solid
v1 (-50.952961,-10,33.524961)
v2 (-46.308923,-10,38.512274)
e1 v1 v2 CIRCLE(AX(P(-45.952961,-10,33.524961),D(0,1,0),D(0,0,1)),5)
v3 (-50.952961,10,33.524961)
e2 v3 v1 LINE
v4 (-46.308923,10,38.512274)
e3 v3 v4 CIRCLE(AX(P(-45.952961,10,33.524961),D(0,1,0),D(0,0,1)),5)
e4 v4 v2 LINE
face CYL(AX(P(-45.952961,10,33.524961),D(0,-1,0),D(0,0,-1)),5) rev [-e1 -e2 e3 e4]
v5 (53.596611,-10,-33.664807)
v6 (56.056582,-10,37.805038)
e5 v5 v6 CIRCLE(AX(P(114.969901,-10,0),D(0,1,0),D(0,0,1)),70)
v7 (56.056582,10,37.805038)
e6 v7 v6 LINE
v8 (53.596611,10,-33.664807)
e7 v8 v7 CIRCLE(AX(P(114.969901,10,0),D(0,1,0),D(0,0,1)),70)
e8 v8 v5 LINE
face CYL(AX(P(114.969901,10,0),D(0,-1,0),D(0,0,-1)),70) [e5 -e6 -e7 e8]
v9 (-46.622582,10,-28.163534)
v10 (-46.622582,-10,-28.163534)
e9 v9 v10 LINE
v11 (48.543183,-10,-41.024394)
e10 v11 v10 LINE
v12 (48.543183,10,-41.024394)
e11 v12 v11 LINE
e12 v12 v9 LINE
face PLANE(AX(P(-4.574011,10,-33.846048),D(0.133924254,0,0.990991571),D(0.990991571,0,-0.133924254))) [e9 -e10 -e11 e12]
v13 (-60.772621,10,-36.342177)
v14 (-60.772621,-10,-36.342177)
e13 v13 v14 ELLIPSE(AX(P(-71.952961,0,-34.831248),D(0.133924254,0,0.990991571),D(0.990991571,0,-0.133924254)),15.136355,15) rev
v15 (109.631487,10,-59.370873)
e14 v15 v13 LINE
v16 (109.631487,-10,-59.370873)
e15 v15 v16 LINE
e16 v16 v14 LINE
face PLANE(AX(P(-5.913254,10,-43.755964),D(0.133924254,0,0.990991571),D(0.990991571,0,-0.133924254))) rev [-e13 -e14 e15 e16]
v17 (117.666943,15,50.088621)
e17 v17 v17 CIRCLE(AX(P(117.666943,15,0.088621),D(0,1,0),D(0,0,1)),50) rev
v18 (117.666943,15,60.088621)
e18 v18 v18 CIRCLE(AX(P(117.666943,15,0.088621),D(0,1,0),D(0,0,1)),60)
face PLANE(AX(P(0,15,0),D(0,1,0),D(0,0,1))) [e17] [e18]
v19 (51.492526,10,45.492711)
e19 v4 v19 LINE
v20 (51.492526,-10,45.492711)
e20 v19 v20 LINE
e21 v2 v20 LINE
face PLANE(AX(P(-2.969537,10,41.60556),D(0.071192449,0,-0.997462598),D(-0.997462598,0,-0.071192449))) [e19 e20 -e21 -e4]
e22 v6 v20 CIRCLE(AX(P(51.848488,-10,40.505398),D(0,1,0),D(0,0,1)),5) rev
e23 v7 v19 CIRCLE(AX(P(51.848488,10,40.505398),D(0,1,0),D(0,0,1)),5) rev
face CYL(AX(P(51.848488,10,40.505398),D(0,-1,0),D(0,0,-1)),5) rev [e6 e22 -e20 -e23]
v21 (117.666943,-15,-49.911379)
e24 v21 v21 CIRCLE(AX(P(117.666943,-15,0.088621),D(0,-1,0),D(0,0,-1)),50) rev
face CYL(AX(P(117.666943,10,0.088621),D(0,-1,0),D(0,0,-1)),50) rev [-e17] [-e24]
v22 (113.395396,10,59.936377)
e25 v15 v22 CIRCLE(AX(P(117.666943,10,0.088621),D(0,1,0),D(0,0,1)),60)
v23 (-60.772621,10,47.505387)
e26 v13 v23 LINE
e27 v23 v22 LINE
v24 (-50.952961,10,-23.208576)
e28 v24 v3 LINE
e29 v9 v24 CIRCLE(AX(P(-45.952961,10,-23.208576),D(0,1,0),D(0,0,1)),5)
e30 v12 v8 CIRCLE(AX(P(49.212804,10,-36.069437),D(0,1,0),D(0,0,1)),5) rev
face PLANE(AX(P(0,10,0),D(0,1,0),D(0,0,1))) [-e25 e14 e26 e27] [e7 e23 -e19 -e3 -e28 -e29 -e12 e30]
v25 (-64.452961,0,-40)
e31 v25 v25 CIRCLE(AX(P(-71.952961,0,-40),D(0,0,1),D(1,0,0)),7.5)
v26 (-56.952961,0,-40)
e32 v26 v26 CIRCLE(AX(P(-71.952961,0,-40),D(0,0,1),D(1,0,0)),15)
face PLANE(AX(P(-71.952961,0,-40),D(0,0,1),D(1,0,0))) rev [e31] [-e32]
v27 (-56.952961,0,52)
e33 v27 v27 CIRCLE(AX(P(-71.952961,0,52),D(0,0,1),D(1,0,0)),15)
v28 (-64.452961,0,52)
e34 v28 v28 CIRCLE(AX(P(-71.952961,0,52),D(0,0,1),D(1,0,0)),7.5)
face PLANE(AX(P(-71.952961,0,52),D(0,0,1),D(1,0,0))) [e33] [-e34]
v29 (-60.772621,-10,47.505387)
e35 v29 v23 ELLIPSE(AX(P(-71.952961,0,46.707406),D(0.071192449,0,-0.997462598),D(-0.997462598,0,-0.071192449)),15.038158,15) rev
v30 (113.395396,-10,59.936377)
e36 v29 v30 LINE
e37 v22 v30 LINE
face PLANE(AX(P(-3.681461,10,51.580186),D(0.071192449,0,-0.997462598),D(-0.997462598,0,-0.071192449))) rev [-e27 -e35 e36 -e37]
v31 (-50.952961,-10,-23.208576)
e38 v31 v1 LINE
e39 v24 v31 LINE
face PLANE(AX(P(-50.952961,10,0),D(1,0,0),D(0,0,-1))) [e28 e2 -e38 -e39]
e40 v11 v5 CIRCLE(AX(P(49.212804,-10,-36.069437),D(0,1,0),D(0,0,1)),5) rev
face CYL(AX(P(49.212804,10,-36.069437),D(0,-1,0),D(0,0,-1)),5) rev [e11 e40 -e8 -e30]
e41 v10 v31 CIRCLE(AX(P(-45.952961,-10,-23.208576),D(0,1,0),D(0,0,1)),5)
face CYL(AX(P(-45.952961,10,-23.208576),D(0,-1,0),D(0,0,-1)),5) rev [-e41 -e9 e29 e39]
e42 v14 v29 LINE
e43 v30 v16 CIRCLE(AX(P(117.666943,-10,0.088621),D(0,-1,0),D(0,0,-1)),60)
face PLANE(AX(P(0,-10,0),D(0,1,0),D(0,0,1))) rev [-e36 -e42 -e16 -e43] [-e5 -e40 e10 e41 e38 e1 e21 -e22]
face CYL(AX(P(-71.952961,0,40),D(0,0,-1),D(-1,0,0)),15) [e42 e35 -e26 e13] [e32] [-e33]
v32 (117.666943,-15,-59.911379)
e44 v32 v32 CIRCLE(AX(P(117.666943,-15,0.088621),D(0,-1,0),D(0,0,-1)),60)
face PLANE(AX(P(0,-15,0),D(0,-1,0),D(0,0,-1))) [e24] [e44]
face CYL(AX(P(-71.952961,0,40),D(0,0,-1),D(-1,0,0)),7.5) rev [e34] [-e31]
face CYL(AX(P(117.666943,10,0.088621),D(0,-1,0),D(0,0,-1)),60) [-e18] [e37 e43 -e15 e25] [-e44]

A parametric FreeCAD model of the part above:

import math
import FreeCAD as App
import Part
import Sketcher
Q = App.Units.Quantity

doc = App.newDocument("Part")
body = doc.addObject("PartDesign::Body", "Body")

# Sketch on XZ plane
sketch1 = doc.addObject("Sketcher::SketchObject", "Sketch")
body.addObject(sketch1)
sketch1.AttachmentSupport = (doc.XZ_Plane, [""])
sketch1.MapMode = "FlatFace"
sketch1.addGeometry(Part.LineSegment(App.Vector(109.6, -59.4, 0), App.Vector(-61, -36.3, 0)), False)
sketch1.addGeometry(Part.LineSegment(App.Vector(-61, -36.3, 0), App.Vector(-61, 47.5, 0)), False)
sketch1.addGeometry(Part.LineSegment(App.Vector(-61, 47.5, 0), App.Vector(113.4, 59.9, 0)), False)
sketch1.addGeometry(Part.ArcOfCircle(Part.Circle(App.Vector(117.7, 0.1, 0), App.Vector(0, 0, 1), 60), math.radians(0), math.radians(94)), False)
sketch1.addGeometry(Part.ArcOfCircle(Part.Circle(App.Vector(117.7, 0.1, 0), App.Vector(0, 0, 1), 60), math.radians(-98), math.radians(0)), False)
sketch1.addGeometry(Part.ArcOfCircle(Part.Circle(App.Vector(-46, -23.2, 0), App.Vector(0, 0, 1), 5), math.radians(180), math.radians(262)), False)
sketch1.addGeometry(Part.LineSegment(App.Vector(-46.6, -28.2, 0), App.Vector(48.5, -41, 0)), False)
sketch1.addGeometry(Part.ArcOfCircle(Part.Circle(App.Vector(49.2, -36.1, 0), App.Vector(0, 0, 1), 5), math.radians(-98), math.radians(29)), False)
sketch1.addGeometry(Part.ArcOfCircle(Part.Circle(App.Vector(115, 0, 0), App.Vector(0, 0, 1), 70), math.radians(147), math.radians(209)), False)
sketch1.addGeometry(Part.ArcOfCircle(Part.Circle(App.Vector(51.8, 40.5, 0), App.Vector(0, 0, 1), 5), math.radians(-33), math.radians(94)), False)
sketch1.addGeometry(Part.LineSegment(App.Vector(51.5, 45.5, 0), App.Vector(-46.3, 38.5, 0)), False)
sketch1.addGeometry(Part.ArcOfCircle(Part.Circle(App.Vector(-46, 33.5, 0), App.Vector(0, 0, 1), 5), math.radians(94), math.radians(180)), False)
sketch1.addGeometry(Part.LineSegment(App.Vector(-51, 33.5, 0), App.Vector(-51, -23.2, 0)), False)
sketch1.addGeometry(Part.Circle(App.Vector(117.7, 0.1, 0), App.Vector(0, 0, 1), 50), False)
sketch1.addConstraint(Sketcher.Constraint("Coincident", 0, 2, 1, 1))
sketch1.addConstraint(Sketcher.Constraint("Coincident", 1, 2, 2, 1))
sketch1.addConstraint(Sketcher.Constraint("Tangent", 2, 2, 3, 2))
sketch1.addConstraint(Sketcher.Constraint("Tangent", 3, 1, 4, 2))
sketch1.addConstraint(Sketcher.Constraint("Tangent", 4, 1, 0, 1))
sketch1.addConstraint(Sketcher.Constraint("Tangent", 5, 2, 6, 1))
sketch1.addConstraint(Sketcher.Constraint("Tangent", 6, 2, 7, 1))
sketch1.addConstraint(Sketcher.Constraint("Tangent", 7, 2, 8, 2))
sketch1.addConstraint(Sketcher.Constraint("Tangent", 8, 1, 9, 1))
sketch1.addConstraint(Sketcher.Constraint("Tangent", 9, 2, 10, 1))
sketch1.addConstraint(Sketcher.Constraint("Tangent", 10, 2, 11, 1))
sketch1.addConstraint(Sketcher.Constraint("Tangent", 11, 2, 12, 1))
sketch1.addConstraint(Sketcher.Constraint("Tangent", 12, 2, 5, 1))
sketch1.addConstraint(Sketcher.Constraint("Vertical", 1))
sketch1.addConstraint(Sketcher.Constraint("Vertical", 12))
sketch1.addConstraint(Sketcher.Constraint("Coincident", 13, 3, 3, 3))
sketch1.addConstraint(Sketcher.Constraint("Equal", 3, 4))
sketch1.addConstraint(Sketcher.Constraint("Equal", 5, 7))
sketch1.addConstraint(Sketcher.Constraint("Equal", 7, 9))
sketch1.addConstraint(Sketcher.Constraint("Equal", 9, 11))
sketch1.addConstraint(Sketcher.Constraint("PointOnObject", 8, 3, -1))
sketch1.addConstraint(Sketcher.Constraint("Parallel", 0, 6))
sketch1.addConstraint(Sketcher.Constraint("Parallel", 2, 10))
sketch1.addConstraint(Sketcher.Constraint("Horizontal", 13, 3, 3, 1))
sketch1.addConstraint(Sketcher.Constraint("Diameter", 13, Q("100 mm")))
sketch1.addConstraint(Sketcher.Constraint("Radius", 3, Q("60 mm")))
sketch1.addConstraint(Sketcher.Constraint("Radius", 5, Q("5 mm")))
sketch1.addConstraint(Sketcher.Constraint("Radius", 8, Q("70 mm")))
sketch1.addConstraint(Sketcher.Constraint("DistanceX", 0, 2, 5, 3, Q("15 mm")))
sketch1.addConstraint(Sketcher.Constraint("DistanceY", 1, 1, 1, 2, Q("83.810322 mm")))
sketch1.addConstraint(Sketcher.Constraint("DistanceX", -1, 1, 8, 3, Q("114.969901 mm")))
sketch1.addConstraint(Sketcher.Constraint("DistanceY", 12, 2, 12, 1, Q("56.733537 mm")))
sketch1.addConstraint(Sketcher.Constraint("DistanceY", -1, 1, 3, 3, Q("0.088621 mm")))
sketch1.addConstraint(Sketcher.Constraint("DistanceX", 5, 3, -1, 1, Q("45.952961 mm")))
sketch1.addConstraint(Sketcher.Constraint("DistanceX", -1, 1, 9, 3, Q("51.848488 mm")))
sketch1.addConstraint(Sketcher.Constraint("DistanceY", -1, 1, 11, 3, Q("33.524961 mm")))
sketch1.addConstraint(Sketcher.Constraint("DistanceX", -1, 1, 7, 2, Q("53.596611 mm")))
pad1 = doc.addObject("PartDesign::Pad", "Pad")
body.addObject(pad1)
pad1.Profile = sketch1
pad1.Length = 20
pad1.Midplane = True

# Sketch on XZ plane
sketch2 = doc.addObject("Sketcher::SketchObject", "Sketch001")
body.addObject(sketch2)
sketch2.AttachmentSupport = (doc.XZ_Plane, [""])
sketch2.MapMode = "FlatFace"
sketch2.AttachmentOffset = App.Placement(App.Vector(0, 0, -10), App.Rotation())
sketch2.addGeometry(Part.ArcOfCircle(Part.Circle(App.Vector(118, 0, 0), App.Vector(0, 0, 1), 60), math.radians(94), math.radians(262)), False)
sketch2.addGeometry(Part.ArcOfCircle(Part.Circle(App.Vector(118, 0, 0), App.Vector(0, 0, 1), 60), math.radians(0), math.radians(94)), False)
sketch2.addGeometry(Part.ArcOfCircle(Part.Circle(App.Vector(118, 0, 0), App.Vector(0, 0, 1), 60), math.radians(-98), math.radians(0)), False)
sketch2.addGeometry(Part.Circle(App.Vector(118, 0, 0), App.Vector(0, 0, 1), 50), False)
sketch2.addConstraint(Sketcher.Constraint("Tangent", 0, 1, 1, 2))
sketch2.addConstraint(Sketcher.Constraint("Tangent", 1, 1, 2, 2))
sketch2.addConstraint(Sketcher.Constraint("Tangent", 2, 1, 0, 2))
sketch2.addConstraint(Sketcher.Constraint("Coincident", 3, 3, 0, 3))
sketch2.addConstraint(Sketcher.Constraint("Horizontal", 3, 3, 1, 1))
sketch2.addConstraint(Sketcher.Constraint("Diameter", 3, Q("100 mm")))
sketch2.addConstraint(Sketcher.Constraint("Radius", 0, Q("60 mm")))
sketch2.addConstraint(Sketcher.Constraint("DistanceY", -1, 1, 0, 3, Q("0.088621 mm")))
sketch2.addConstraint(Sketcher.Constraint("DistanceX", -1, 1, 0, 3, Q("117.666943 mm")))
sketch2.addConstraint(Sketcher.Constraint("DistanceX", -1, 1, 0, 1, Q("113.395396 mm")))
sketch2.addConstraint(Sketcher.Constraint("DistanceX", -1, 1, 2, 1, Q("109.631487 mm")))
pad2 = doc.addObject("PartDesign::Pad", "Pad001")
body.addObject(pad2)
pad2.Profile = sketch2
pad2.Length = 5
pad2.Reversed = True

# Sketch on XZ plane
sketch3 = doc.addObject("Sketcher::SketchObject", "Sketch002")
body.addObject(sketch3)
sketch3.AttachmentSupport = (doc.XZ_Plane, [""])
sketch3.MapMode = "FlatFace"
sketch3.AttachmentOffset = App.Placement(App.Vector(0, 0, 15), App.Rotation())
sketch3.addGeometry(Part.ArcOfCircle(Part.Circle(App.Vector(118, 0, 0), App.Vector(0, 0, 1), 60), math.radians(94), math.radians(262)), False)
sketch3.addGeometry(Part.ArcOfCircle(Part.Circle(App.Vector(118, 0, 0), App.Vector(0, 0, 1), 60), math.radians(-98), math.radians(0)), False)
sketch3.addGeometry(Part.ArcOfCircle(Part.Circle(App.Vector(118, 0, 0), App.Vector(0, 0, 1), 60), math.radians(0), math.radians(94)), False)
sketch3.addGeometry(Part.Circle(App.Vector(118, 0, 0), App.Vector(0, 0, 1), 50), False)
sketch3.addConstraint(Sketcher.Constraint("Tangent", 0, 2, 1, 1))
sketch3.addConstraint(Sketcher.Constraint("Tangent", 1, 2, 2, 1))
sketch3.addConstraint(Sketcher.Constraint("Tangent", 2, 2, 0, 1))
sketch3.addConstraint(Sketcher.Constraint("Coincident", 3, 3, 0, 3))
sketch3.addConstraint(Sketcher.Constraint("Horizontal", 3, 3, 1, 2))
sketch3.addConstraint(Sketcher.Constraint("Diameter", 3, Q("100 mm")))
sketch3.addConstraint(Sketcher.Constraint("Radius", 0, Q("60 mm")))
sketch3.addConstraint(Sketcher.Constraint("DistanceY", -1, 1, 0, 3, Q("0.088621 mm")))
sketch3.addConstraint(Sketcher.Constraint("DistanceX", -1, 1, 0, 3, Q("117.666943 mm")))
sketch3.addConstraint(Sketcher.Constraint("DistanceX", -1, 1, 0, 2, Q("109.631487 mm")))
sketch3.addConstraint(Sketcher.Constraint("DistanceX", -1, 1, 2, 2, Q("113.395396 mm")))
pad3 = doc.addObject("PartDesign::Pad", "Pad002")
body.addObject(pad3)
pad3.Profile = sketch3
pad3.Length = 5
pad3.Reversed = True

# Sketch on XY plane
sketch4 = doc.addObject("Sketcher::SketchObject", "Sketch003")
body.addObject(sketch4)
sketch4.AttachmentSupport = (doc.XY_Plane, [""])
sketch4.MapMode = "FlatFace"
sketch4.addGeometry(Part.Circle(App.Vector(-72, 0, 0), App.Vector(0, 0, 1), 15), False)
sketch4.addGeometry(Part.Circle(App.Vector(-72, 0, 0), App.Vector(0, 0, 1), 8), False)
sketch4.addConstraint(Sketcher.Constraint("Coincident", 1, 3, 0, 3))
sketch4.addConstraint(Sketcher.Constraint("PointOnObject", 0, 3, -1))
sketch4.addConstraint(Sketcher.Constraint("Diameter", 0, Q("30 mm")))
sketch4.addConstraint(Sketcher.Constraint("Diameter", 1, Q("15 mm")))
sketch4.addConstraint(Sketcher.Constraint("DistanceX", 0, 3, -1, 1, Q("71.952961 mm")))
pad4 = doc.addObject("PartDesign::Pad", "Pad003")
body.addObject(pad4)
pad4.Profile = sketch4
pad4.Length = 80
pad4.Midplane = True

# Sketch on XY plane
sketch5 = doc.addObject("Sketcher::SketchObject", "Sketch004")
body.addObject(sketch5)
sketch5.AttachmentSupport = (doc.XY_Plane, [""])
sketch5.MapMode = "FlatFace"
sketch5.AttachmentOffset = App.Placement(App.Vector(0, 0, 90), App.Rotation())
sketch5.addGeometry(Part.Circle(App.Vector(-72, 0, 0), App.Vector(0, 0, 1), 15), False)
sketch5.addConstraint(Sketcher.Constraint("PointOnObject", 0, 3, -1))
sketch5.addConstraint(Sketcher.Constraint("Diameter", 0, Q("30 mm")))
sketch5.addConstraint(Sketcher.Constraint("DistanceX", 0, 3, -1, 1, Q("71.952961 mm")))
pocket1 = doc.addObject("PartDesign::Pocket", "Pocket")
body.addObject(pocket1)
pocket1.Profile = sketch5
pocket1.Length = 50

# Sketch on XY plane
sketch6 = doc.addObject("Sketcher::SketchObject", "Sketch005")
body.addObject(sketch6)
sketch6.AttachmentSupport = (doc.XY_Plane, [""])
sketch6.MapMode = "FlatFace"
sketch6.AttachmentOffset = App.Placement(App.Vector(0, 0, 52), App.Rotation())
sketch6.addGeometry(Part.ArcOfCircle(Part.Circle(App.Vector(-72, 0, 0), App.Vector(0, 0, 1), 15), math.radians(42), math.radians(318)), False)
sketch6.addGeometry(Part.ArcOfCircle(Part.Circle(App.Vector(-72, 0, 0), App.Vector(0, 0, 1), 15), math.radians(-42), math.radians(42)), False)
sketch6.addGeometry(Part.Circle(App.Vector(-72, 0, 0), App.Vector(0, 0, 1), 8), False)
sketch6.addConstraint(Sketcher.Constraint("Tangent", 0, 1, 1, 2))
sketch6.addConstraint(Sketcher.Constraint("Coincident", 1, 1, 0, 2))
sketch6.addConstraint(Sketcher.Constraint("Coincident", 2, 3, 0, 3))
sketch6.addConstraint(Sketcher.Constraint("Symmetric", 0, 1, 1, 1, -1))
sketch6.addConstraint(Sketcher.Constraint("Diameter", 2, Q("15 mm")))
sketch6.addConstraint(Sketcher.Constraint("Radius", 0, Q("15 mm")))
sketch6.addConstraint(Sketcher.Constraint("DistanceY", -1, 1, 0, 1, Q("10 mm")))
sketch6.addConstraint(Sketcher.Constraint("DistanceX", 0, 3, -1, 1, Q("71.952961 mm")))
pad5 = doc.addObject("PartDesign::Pad", "Pad004")
body.addObject(pad5)
pad5.Profile = sketch6
pad5.Length = 12
pad5.Reversed = True

doc.recompute()
